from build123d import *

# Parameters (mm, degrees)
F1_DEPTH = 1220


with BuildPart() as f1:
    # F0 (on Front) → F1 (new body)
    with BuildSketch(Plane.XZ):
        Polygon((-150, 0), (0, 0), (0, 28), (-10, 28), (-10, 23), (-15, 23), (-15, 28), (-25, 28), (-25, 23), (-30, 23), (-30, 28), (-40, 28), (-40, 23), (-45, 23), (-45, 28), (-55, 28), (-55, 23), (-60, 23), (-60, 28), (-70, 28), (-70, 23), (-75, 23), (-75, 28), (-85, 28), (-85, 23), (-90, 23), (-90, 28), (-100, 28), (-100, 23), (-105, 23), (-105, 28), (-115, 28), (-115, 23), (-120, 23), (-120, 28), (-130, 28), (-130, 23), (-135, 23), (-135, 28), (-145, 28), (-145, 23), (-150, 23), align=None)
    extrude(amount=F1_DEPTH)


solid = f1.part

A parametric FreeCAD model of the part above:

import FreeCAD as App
import Part
import Sketcher

V = App.Vector
Q = App.Units.Quantity


def add_polygon(sketch, points):
    """Adds a closed chain of lines whose ends are joined by coincident constraints."""
    first, n = sketch.GeometryCount, len(points)
    for a, b in zip(points, points[1:] + points[:1]):
        sketch.addGeometry(Part.LineSegment(App.Vector(*a, 0), App.Vector(*b, 0)), False)
    for i in range(n):
        sketch.addConstraint(Sketcher.Constraint("Coincident", first + i, 2, first + (i + 1) % n, 1))

doc = App.newDocument("Part")
body = doc.addObject("PartDesign::Body", "Body")

# Sketch on XZ plane
sketch1 = body.newObject("Sketcher::SketchObject", "Sketch")
sketch1.AttachmentSupport = (doc.getObject("XZ_Plane"), [""])
sketch1.MapMode = "FlatFace"
add_polygon(sketch1, [(-150, 0), (0, 0), (0, 28), (-10, 28), (-10, 23), (-15, 23), (-15, 28), (-25, 28), (-25, 23), (-30, 23), (-30, 28), (-40, 28), (-40, 23), (-45, 23), (-45, 28), (-55, 28), (-55, 23), (-60, 23), (-60, 28), (-70, 28), (-70, 23), (-75, 23), (-75, 28), (-85, 28), (-85, 23), (-90, 23), (-90, 28), (-100, 28), (-100, 23), (-105, 23), (-105, 28), (-115, 28), (-115, 23), (-120, 23), (-120, 28), (-130, 28), (-130, 23), (-135, 23), (-135, 28), (-145, 28), (-145, 23), (-150, 23)])  # lines 0-41
sketch1.addConstraint([
    Sketcher.Constraint("Horizontal", 0),
    Sketcher.Constraint("Vertical", 1),
    Sketcher.Constraint("Horizontal", 2),
    Sketcher.Constraint("Vertical", 3),
    Sketcher.Constraint("Horizontal", 4),
    Sketcher.Constraint("Vertical", 5),
    Sketcher.Constraint("Horizontal", 6),
    Sketcher.Constraint("Vertical", 7),
    Sketcher.Constraint("Horizontal", 8),
    Sketcher.Constraint("Vertical", 9),
    Sketcher.Constraint("Horizontal", 10),
    Sketcher.Constraint("Vertical", 11),
    Sketcher.Constraint("Horizontal", 12),
    Sketcher.Constraint("Vertical", 13),
    Sketcher.Constraint("Horizontal", 14),
    Sketcher.Constraint("Vertical", 15),
    Sketcher.Constraint("Horizontal", 16),
    Sketcher.Constraint("Vertical", 17),
    Sketcher.Constraint("Horizontal", 18),
    Sketcher.Constraint("Vertical", 19),
    Sketcher.Constraint("Horizontal", 20),
    Sketcher.Constraint("Vertical", 21),
    Sketcher.Constraint("Horizontal", 22),
    Sketcher.Constraint("Vertical", 23),
    Sketcher.Constraint("Horizontal", 24),
    Sketcher.Constraint("Vertical", 25),
    Sketcher.Constraint("Horizontal", 26),
    Sketcher.Constraint("Vertical", 27),
    Sketcher.Constraint("Horizontal", 28),
    Sketcher.Constraint("Vertical", 29),
    Sketcher.Constraint("Horizontal", 30),
    Sketcher.Constraint("Vertical", 31),
    Sketcher.Constraint("Horizontal", 32),
    Sketcher.Constraint("Vertical", 33),
    Sketcher.Constraint("Horizontal", 34),
    Sketcher.Constraint("Vertical", 35),
    Sketcher.Constraint("Horizontal", 36),
    Sketcher.Constraint("Vertical", 37),
    Sketcher.Constraint("Horizontal", 38),
    Sketcher.Constraint("Vertical", 39),
    Sketcher.Constraint("Horizontal", 40),
    Sketcher.Constraint("Vertical", 41),
    Sketcher.Constraint("Coincident", 0, 2, -1, 1),
    Sketcher.Constraint("Horizontal", 2, 2, 5, 2),
    Sketcher.Constraint("Horizontal", 4, 2, 7, 2),
    Sketcher.Constraint("Horizontal", 6, 2, 9, 2),
    Sketcher.Constraint("Horizontal", 8, 2, 11, 2),
    Sketcher.Constraint("Horizontal", 10, 2, 13, 2),
    Sketcher.Constraint("Horizontal", 12, 2, 15, 2),
    Sketcher.Constraint("Horizontal", 14, 2, 17, 2),
    Sketcher.Constraint("Horizontal", 16, 2, 19, 2),
    Sketcher.Constraint("Horizontal", 18, 2, 21, 2),
    Sketcher.Constraint("Horizontal", 20, 2, 23, 2),
    Sketcher.Constraint("Horizontal", 22, 2, 25, 2),
    Sketcher.Constraint("Horizontal", 24, 2, 27, 2),
    Sketcher.Constraint("Horizontal", 26, 2, 29, 2),
    Sketcher.Constraint("Horizontal", 28, 2, 31, 2),
    Sketcher.Constraint("Horizontal", 30, 2, 33, 2),
    Sketcher.Constraint("Horizontal", 32, 2, 35, 2),
    Sketcher.Constraint("Horizontal", 34, 2, 37, 2),
    Sketcher.Constraint("Horizontal", 36, 2, 39, 2),
    Sketcher.Constraint("Equal", 2, 6),
    Sketcher.Constraint("Equal", 4, 8),
    Sketcher.Constraint("Equal", 6, 10),
    Sketcher.Constraint("Equal", 8, 12),
    Sketcher.Constraint("Equal", 10, 14),
    Sketcher.Constraint("Equal", 12, 16),
    Sketcher.Constraint("Equal", 14, 18),
    Sketcher.Constraint("Equal", 16, 20),
    Sketcher.Constraint("Equal", 18, 22),
    Sketcher.Constraint("Equal", 20, 24),
    Sketcher.Constraint("Equal", 22, 26),
    Sketcher.Constraint("Equal", 24, 28),
    Sketcher.Constraint("Equal", 26, 30),
    Sketcher.Constraint("Equal", 28, 32),
    Sketcher.Constraint("Equal", 30, 34),
    Sketcher.Constraint("Equal", 32, 36),
    Sketcher.Constraint("Equal", 34, 38),
    Sketcher.Constraint("Equal", 36, 40),
    Sketcher.Constraint("Equal", 40, 3),
    Sketcher.Constraint("DistanceX", 0, 1, 0, 2, Q("150 mm")),
    Sketcher.Constraint("DistanceX", 2, 2, 2, 1, Q("10 mm")),
    Sketcher.Constraint("DistanceY", 1, 1, 1, 2, Q("28 mm")),
])
pad1 = body.newObject("PartDesign::Pad", "Pad")
pad1.Profile = sketch1
pad1.Length = 1220

doc.recompute()
